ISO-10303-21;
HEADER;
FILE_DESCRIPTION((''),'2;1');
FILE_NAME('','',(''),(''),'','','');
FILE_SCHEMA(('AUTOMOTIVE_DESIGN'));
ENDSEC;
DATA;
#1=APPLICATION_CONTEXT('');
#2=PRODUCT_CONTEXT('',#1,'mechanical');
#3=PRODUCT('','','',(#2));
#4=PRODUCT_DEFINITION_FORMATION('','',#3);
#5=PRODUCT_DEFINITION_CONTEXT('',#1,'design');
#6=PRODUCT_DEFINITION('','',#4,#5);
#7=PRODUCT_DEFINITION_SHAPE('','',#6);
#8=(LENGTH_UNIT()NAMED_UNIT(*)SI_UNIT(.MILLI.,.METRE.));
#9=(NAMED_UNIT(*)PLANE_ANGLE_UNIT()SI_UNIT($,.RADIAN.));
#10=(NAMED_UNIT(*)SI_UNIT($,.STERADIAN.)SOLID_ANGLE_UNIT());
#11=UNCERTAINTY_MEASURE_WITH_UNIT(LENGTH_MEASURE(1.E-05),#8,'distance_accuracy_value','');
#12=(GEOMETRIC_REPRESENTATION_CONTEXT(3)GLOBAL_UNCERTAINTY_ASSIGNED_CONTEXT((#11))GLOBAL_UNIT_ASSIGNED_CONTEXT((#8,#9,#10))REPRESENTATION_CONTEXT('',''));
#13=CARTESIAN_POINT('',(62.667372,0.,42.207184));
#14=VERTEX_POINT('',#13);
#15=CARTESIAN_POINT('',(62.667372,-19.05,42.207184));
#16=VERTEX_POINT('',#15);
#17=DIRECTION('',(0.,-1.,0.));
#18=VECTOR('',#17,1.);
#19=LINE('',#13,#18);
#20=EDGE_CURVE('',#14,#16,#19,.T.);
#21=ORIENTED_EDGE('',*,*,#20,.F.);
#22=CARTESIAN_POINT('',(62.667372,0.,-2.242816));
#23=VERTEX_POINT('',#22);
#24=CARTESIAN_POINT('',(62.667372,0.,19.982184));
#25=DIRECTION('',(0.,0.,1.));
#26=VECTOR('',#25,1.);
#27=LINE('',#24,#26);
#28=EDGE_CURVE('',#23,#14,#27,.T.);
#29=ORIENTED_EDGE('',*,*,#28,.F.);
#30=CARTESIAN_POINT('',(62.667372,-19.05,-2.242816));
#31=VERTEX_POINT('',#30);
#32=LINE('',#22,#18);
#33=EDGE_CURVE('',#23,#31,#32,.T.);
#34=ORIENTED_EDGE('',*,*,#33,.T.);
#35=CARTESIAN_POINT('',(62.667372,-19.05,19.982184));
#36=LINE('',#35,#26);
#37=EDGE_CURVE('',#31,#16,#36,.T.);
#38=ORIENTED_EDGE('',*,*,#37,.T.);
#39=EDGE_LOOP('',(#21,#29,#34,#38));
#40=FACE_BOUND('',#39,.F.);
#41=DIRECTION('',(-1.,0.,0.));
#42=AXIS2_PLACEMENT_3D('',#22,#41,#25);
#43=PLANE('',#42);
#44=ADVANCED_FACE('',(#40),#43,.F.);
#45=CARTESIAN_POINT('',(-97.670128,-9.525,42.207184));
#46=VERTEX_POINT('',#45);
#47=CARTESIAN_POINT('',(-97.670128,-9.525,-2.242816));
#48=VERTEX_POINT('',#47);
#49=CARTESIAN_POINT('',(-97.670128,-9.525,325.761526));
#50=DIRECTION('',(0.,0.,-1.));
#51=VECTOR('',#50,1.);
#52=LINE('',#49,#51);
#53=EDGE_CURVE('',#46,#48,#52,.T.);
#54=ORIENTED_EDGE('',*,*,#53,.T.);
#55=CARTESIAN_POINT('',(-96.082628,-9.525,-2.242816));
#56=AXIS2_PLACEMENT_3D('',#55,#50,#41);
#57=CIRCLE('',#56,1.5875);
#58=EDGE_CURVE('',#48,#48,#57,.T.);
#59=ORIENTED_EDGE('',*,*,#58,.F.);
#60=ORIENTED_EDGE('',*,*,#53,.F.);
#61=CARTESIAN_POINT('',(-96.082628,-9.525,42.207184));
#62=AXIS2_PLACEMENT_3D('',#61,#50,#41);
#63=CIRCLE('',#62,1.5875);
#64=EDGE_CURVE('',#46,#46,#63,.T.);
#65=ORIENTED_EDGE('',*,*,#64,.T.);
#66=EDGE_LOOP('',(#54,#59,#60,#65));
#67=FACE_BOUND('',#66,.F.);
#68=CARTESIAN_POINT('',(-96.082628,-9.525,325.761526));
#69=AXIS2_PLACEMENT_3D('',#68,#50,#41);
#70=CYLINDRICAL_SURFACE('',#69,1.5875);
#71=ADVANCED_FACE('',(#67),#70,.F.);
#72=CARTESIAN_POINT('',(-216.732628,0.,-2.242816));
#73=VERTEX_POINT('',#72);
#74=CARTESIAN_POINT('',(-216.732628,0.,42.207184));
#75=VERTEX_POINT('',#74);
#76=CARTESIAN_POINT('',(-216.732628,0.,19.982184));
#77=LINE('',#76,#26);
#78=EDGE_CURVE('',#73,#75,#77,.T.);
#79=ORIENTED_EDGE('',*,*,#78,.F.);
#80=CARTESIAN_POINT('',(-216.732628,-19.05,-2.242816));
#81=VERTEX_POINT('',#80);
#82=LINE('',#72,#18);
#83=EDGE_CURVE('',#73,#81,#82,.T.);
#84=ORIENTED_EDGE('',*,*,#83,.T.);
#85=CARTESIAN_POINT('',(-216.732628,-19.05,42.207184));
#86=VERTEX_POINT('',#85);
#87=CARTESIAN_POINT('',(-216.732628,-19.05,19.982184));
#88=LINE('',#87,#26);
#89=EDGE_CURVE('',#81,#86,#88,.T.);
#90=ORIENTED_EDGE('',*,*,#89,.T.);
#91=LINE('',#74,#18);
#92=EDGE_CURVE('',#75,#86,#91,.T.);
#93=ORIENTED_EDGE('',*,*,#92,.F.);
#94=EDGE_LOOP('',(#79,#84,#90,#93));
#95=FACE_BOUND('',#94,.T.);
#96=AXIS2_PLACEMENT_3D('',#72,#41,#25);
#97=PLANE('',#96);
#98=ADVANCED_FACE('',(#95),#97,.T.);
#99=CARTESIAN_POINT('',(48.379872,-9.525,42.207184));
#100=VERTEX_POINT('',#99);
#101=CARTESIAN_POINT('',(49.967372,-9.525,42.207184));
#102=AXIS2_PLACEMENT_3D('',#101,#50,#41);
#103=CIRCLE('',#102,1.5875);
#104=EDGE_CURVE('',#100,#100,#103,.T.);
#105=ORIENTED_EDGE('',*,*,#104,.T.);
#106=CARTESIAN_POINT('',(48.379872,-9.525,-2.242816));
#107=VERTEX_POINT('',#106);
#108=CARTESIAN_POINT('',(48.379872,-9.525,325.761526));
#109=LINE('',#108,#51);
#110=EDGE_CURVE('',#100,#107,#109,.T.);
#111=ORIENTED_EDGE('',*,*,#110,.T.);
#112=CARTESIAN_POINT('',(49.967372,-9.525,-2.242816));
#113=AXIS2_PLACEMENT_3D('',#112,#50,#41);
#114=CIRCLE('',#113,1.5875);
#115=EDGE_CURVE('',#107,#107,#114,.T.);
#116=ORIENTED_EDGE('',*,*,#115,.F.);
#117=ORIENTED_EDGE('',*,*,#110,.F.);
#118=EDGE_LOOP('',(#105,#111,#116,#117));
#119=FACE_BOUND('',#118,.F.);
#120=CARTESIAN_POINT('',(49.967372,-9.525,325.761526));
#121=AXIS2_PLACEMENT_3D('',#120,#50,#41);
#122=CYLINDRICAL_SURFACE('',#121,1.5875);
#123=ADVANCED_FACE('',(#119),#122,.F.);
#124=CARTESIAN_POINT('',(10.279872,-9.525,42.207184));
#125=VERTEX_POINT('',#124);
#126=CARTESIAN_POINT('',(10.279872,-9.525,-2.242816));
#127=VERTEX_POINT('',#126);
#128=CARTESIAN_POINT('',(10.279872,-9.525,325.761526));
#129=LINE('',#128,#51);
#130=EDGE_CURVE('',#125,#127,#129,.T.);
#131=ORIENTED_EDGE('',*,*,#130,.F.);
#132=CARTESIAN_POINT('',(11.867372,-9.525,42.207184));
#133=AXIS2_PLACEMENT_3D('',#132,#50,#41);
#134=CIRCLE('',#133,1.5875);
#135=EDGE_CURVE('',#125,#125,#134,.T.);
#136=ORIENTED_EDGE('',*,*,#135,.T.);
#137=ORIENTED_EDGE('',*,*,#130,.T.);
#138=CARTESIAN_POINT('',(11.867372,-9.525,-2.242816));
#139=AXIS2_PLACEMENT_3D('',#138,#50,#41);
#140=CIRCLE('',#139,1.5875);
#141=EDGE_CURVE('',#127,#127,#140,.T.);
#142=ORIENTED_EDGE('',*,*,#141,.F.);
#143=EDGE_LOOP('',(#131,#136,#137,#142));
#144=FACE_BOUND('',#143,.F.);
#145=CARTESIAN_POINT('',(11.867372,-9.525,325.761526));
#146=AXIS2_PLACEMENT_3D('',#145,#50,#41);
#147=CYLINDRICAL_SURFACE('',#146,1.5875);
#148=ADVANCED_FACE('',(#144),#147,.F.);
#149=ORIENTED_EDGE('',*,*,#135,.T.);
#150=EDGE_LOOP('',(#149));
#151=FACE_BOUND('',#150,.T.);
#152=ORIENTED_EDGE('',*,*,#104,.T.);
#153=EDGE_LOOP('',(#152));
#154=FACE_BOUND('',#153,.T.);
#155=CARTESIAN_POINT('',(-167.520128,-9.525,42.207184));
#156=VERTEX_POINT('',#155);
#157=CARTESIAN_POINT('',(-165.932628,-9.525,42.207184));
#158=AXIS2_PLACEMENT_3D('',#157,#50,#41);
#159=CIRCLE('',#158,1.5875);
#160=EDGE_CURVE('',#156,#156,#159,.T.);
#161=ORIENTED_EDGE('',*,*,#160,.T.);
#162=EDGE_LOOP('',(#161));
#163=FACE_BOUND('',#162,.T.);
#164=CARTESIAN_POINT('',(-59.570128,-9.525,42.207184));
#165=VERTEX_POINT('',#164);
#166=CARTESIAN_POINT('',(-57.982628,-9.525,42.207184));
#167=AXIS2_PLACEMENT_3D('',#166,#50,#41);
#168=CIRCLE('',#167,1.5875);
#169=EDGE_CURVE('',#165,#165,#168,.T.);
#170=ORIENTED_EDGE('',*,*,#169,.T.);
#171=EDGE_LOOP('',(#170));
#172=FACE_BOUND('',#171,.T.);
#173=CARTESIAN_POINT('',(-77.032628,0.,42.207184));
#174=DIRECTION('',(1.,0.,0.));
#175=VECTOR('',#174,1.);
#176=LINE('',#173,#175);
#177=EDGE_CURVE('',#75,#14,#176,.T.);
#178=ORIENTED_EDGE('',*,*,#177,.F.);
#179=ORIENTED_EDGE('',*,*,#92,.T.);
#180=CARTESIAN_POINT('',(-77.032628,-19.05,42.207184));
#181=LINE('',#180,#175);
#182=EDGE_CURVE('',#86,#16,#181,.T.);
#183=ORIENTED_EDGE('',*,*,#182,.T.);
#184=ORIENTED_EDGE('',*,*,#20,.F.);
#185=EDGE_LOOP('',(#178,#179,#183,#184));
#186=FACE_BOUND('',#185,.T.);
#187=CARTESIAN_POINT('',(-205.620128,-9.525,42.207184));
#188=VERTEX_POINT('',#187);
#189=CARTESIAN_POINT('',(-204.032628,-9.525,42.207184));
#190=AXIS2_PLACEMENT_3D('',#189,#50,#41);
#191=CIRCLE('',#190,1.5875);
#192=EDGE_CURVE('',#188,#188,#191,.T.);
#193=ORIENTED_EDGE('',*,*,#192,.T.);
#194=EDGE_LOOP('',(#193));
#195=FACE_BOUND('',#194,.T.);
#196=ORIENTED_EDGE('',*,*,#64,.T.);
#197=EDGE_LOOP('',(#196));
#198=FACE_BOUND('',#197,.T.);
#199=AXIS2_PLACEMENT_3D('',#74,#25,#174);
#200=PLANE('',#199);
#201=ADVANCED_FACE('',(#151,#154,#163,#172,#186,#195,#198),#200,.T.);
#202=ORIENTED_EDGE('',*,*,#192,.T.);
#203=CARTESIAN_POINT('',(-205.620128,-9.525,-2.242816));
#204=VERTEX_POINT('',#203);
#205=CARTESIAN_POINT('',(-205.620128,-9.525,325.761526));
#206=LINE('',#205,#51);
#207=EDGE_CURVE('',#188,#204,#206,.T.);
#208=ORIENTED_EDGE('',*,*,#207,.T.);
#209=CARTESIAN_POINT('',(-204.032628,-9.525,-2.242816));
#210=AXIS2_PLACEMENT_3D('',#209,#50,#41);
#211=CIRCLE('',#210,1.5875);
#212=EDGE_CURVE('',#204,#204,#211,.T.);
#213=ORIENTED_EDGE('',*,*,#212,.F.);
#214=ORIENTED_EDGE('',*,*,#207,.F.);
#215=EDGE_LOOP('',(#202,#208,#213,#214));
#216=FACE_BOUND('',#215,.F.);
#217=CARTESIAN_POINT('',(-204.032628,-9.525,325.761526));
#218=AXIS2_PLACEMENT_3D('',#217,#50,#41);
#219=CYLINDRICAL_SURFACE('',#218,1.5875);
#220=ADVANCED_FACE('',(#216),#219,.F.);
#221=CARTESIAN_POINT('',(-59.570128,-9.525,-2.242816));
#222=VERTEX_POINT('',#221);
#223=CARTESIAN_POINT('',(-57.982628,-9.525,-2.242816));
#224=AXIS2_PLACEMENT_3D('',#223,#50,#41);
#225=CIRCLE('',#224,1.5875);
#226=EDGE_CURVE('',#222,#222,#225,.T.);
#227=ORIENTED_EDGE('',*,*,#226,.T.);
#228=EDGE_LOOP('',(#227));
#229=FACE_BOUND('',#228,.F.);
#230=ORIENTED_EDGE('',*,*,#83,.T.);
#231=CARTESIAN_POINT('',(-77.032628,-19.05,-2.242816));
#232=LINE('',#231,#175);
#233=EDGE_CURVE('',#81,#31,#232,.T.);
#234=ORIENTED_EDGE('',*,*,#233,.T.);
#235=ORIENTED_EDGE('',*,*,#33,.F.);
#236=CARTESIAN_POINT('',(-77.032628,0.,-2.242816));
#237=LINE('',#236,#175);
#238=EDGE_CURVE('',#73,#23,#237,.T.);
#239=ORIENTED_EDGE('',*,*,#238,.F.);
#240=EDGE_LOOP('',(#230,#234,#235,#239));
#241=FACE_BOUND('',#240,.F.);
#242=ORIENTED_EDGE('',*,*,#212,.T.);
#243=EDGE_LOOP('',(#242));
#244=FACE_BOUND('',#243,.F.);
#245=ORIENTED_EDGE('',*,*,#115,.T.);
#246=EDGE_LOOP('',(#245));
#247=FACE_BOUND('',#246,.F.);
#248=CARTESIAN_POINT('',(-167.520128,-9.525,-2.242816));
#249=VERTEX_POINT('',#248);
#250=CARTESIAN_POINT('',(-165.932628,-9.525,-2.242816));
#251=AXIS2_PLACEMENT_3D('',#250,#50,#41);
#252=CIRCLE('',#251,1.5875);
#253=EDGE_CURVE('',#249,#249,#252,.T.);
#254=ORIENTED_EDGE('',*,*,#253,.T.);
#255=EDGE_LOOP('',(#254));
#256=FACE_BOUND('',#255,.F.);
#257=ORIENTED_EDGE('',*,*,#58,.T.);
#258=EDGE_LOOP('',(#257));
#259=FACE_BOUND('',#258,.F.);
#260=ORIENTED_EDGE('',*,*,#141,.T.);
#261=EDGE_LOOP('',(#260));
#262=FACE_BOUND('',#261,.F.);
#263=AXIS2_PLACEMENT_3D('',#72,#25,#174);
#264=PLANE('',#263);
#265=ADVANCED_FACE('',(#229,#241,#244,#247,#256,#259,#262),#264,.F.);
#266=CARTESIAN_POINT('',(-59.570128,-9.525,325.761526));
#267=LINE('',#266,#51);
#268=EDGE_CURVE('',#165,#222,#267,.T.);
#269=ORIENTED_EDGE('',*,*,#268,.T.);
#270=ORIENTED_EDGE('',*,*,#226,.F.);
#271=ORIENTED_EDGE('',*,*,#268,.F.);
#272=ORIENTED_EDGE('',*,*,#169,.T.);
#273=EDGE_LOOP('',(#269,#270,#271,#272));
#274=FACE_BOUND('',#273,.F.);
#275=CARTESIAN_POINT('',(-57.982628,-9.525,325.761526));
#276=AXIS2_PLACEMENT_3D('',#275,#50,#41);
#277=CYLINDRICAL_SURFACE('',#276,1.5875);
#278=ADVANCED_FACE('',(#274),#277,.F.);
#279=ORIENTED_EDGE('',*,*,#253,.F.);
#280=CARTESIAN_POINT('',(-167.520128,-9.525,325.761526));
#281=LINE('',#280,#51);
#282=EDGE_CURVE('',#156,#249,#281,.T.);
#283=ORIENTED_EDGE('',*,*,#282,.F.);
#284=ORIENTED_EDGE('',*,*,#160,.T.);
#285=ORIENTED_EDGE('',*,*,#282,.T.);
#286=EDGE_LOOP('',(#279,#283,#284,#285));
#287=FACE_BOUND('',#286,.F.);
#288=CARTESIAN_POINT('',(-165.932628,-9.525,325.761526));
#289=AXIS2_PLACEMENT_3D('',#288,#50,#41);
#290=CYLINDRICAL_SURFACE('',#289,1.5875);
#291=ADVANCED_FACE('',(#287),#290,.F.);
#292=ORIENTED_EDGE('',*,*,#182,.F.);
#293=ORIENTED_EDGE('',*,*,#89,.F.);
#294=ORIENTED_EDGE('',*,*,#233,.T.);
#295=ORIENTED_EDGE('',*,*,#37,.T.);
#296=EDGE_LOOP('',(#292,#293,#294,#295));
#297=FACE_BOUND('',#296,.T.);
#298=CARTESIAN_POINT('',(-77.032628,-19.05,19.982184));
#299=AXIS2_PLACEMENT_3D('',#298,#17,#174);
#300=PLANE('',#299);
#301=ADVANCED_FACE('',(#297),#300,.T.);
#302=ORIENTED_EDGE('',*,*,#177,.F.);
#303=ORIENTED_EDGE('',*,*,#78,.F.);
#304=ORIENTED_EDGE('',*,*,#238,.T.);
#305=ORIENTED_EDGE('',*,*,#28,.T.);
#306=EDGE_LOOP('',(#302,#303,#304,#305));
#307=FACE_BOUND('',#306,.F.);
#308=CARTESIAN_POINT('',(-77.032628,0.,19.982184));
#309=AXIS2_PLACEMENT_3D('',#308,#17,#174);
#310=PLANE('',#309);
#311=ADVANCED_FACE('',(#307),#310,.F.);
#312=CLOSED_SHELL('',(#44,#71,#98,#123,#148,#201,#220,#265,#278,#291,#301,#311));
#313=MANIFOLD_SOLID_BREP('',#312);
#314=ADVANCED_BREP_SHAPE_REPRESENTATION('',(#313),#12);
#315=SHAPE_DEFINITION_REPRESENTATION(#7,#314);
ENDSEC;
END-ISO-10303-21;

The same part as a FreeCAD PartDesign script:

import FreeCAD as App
import Part
import Sketcher
from FreeCAD import Vector
Q = App.Units.Quantity

doc = App.newDocument("Part")
body = doc.addObject("PartDesign::Body", "Body")

# Sketch on XZ plane
sketch1 = doc.addObject("Sketcher::SketchObject", "Sketch")
body.addObject(sketch1)
sketch1.AttachmentSupport = (doc.XZ_Plane, [""])
sketch1.MapMode = "FlatFace"
sketch1.addGeometry([
    Part.LineSegment(Vector(-217, 42, 0), Vector(-217, -2, 0)),
    Part.LineSegment(Vector(-217, -2, 0), Vector(63, -2, 0)),
    Part.LineSegment(Vector(63, -2, 0), Vector(63, 42, 0)),
    Part.LineSegment(Vector(63, 42, 0), Vector(-217, 42, 0)),
], False)
sketch1.addConstraint([
    Sketcher.Constraint("Coincident", 0, 2, 1, 1),
    Sketcher.Constraint("Coincident", 1, 2, 2, 1),
    Sketcher.Constraint("Coincident", 2, 2, 3, 1),
    Sketcher.Constraint("Coincident", 3, 2, 0, 1),
    Sketcher.Constraint("Vertical", 0),
    Sketcher.Constraint("Horizontal", 1),
    Sketcher.Constraint("Vertical", 2),
    Sketcher.Constraint("Horizontal", 3),
    Sketcher.Constraint("DistanceX", 1, 1, 1, 2, Q("11 in")),
    Sketcher.Constraint("DistanceY", 0, 2, 0, 1, Q("1.75 in")),
    Sketcher.Constraint("DistanceY", 0, 2, -1, 1, Q("0.0882998 in")),
    Sketcher.Constraint("DistanceX", 0, 2, -1, 1, Q("216.732628 mm")),
])
pad1 = doc.addObject("PartDesign::Pad", "Pad")
body.addObject(pad1)
pad1.Profile = sketch1
pad1.Length = Q("0.75 in")

# Sketch on XY plane
sketch2 = doc.addObject("Sketcher::SketchObject", "Sketch001")
body.addObject(sketch2)
sketch2.AttachmentSupport = (doc.XY_Plane, [""])
sketch2.MapMode = "FlatFace"
sketch2.AttachmentOffset = App.Placement(Vector(0, 0, 1.6617002 * 25.4), App.Rotation())
sketch2.addGeometry([
    Part.Circle(Vector(-204, -9.5, 0), Vector(0, 0, 1), 1.6),  # 0
    Part.Circle(Vector(-165.9, -9.5, 0), Vector(0, 0, 1), 1.6),  # 1
    Part.Circle(Vector(-96.1, -9.5, 0), Vector(0, 0, 1), 1.6),  # 2
    Part.Circle(Vector(-58, -9.5, 0), Vector(0, 0, 1), 1.6),  # 3
    Part.Circle(Vector(11.9, -9.5, 0), Vector(0, 0, 1), 1.6),  # 4
    Part.Circle(Vector(50, -9.5, 0), Vector(0, 0, 1), 1.6),  # 5
], False)
sketch2.addConstraint([
    Sketcher.Constraint("Equal", 0, 1),
    Sketcher.Constraint("Equal", 1, 2),
    Sketcher.Constraint("Equal", 2, 3),
    Sketcher.Constraint("Equal", 3, 4),
    Sketcher.Constraint("Equal", 4, 5),
    Sketcher.Constraint("Horizontal", 0, 3, 1, 3),
    Sketcher.Constraint("Horizontal", 1, 3, 2, 3),
    Sketcher.Constraint("Horizontal", 2, 3, 3, 3),
    Sketcher.Constraint("Horizontal", 3, 3, 4, 3),
    Sketcher.Constraint("Horizontal", 4, 3, 5, 3),
    Sketcher.Constraint("Diameter", 0, Q("0.125 in")),
    Sketcher.Constraint("DistanceX", 1, 3, 4, 3, Q("7 in")),
    Sketcher.Constraint("DistanceX", 0, 3, 5, 3, Q("10 in")),
    Sketcher.Constraint("DistanceX", 0, 3, 1, 3, Q("1.5 in")),
    Sketcher.Constraint("DistanceX", 2, 3, 3, 3, Q("1.5 in")),
    Sketcher.Constraint("DistanceX", 1, 3, 2, 3, Q("2.75 in")),
    Sketcher.Constraint("DistanceY", 0, 3, -1, 1, Q("0.375 in")),
    Sketcher.Constraint("DistanceX", 1, 3, -1, 1, Q("165.932628 mm")),
])
doc.recompute()
hole = doc.addObject("PartDesign::Hole", "Hole")
body.addObject(hole)
hole.Profile = sketch2
hole.ThreadType = "None"
hole.Diameter = Q("0.125 in")
hole.DepthType = "ThroughAll"

doc.recompute()
